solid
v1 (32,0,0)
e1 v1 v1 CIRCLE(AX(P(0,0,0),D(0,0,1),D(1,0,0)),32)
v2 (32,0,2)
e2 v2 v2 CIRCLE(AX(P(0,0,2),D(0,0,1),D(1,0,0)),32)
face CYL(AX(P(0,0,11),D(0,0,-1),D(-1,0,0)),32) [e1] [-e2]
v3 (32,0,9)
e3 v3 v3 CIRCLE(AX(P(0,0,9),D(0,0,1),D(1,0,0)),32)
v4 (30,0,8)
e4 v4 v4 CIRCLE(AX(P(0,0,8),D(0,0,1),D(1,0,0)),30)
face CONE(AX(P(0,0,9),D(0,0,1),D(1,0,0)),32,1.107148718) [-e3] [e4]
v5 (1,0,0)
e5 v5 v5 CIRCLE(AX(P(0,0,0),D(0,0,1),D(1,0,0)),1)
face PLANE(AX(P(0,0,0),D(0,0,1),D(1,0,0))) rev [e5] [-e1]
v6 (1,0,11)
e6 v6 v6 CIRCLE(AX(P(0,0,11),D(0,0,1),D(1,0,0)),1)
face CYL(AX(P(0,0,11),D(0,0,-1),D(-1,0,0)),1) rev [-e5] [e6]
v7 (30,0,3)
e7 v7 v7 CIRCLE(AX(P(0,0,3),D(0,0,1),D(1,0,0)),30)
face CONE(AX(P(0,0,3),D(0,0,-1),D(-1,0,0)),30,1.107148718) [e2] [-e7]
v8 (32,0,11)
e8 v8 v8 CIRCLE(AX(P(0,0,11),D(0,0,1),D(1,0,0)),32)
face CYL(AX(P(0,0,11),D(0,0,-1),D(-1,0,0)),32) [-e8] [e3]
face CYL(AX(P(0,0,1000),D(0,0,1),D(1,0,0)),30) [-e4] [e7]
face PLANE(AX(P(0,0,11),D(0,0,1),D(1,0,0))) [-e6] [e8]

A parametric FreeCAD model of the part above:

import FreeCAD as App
import Part
import Sketcher


def add_polygon(sketch, points):
    """Adds a closed chain of lines whose ends are joined by coincident constraints."""
    first, n = sketch.GeometryCount, len(points)
    for a, b in zip(points, points[1:] + points[:1]):
        sketch.addGeometry(Part.LineSegment(App.Vector(*a, 0), App.Vector(*b, 0)), False)
    for i in range(n):
        sketch.addConstraint(Sketcher.Constraint("Coincident", first + i, 2, first + (i + 1) % n, 1))

doc = App.newDocument("Part")
body = doc.addObject("PartDesign::Body", "Body")

# Sketch on XY plane
sketch1 = doc.addObject("Sketcher::SketchObject", "Sketch")
body.addObject(sketch1)
sketch1.AttachmentSupport = (doc.XY_Plane, [""])
sketch1.MapMode = "FlatFace"
sketch1.addGeometry([
    Part.Circle(App.Vector(0, 0, 0), App.Vector(0, 0, 1), 32),
    Part.Circle(App.Vector(0, 0, 0), App.Vector(0, 0, 1), 1),
], False)
sketch1.addConstraint([
    Sketcher.Constraint("Coincident", 0, 3, -1, 1),
    Sketcher.Constraint("Coincident", 1, 3, -1, 1),
    Sketcher.Constraint("Diameter", 0, 64.0),
    Sketcher.Constraint("Diameter", 1, 2.0),
])
pad1 = doc.addObject("PartDesign::Pad", "Pad")
body.addObject(pad1)
pad1.Profile = sketch1
pad1.Length = 11

# Sketch on YZ plane
sketch2 = doc.addObject("Sketcher::SketchObject", "Sketch001")
body.addObject(sketch2)
sketch2.AttachmentSupport = (doc.YZ_Plane, [""])
sketch2.MapMode = "FlatFace"
add_polygon(sketch2, [(30, 3), (32, 2), (32, 9), (30, 8)])  # lines 0-3
sketch2.addConstraint([
    Sketcher.Constraint("Vertical", 1),
    Sketcher.Constraint("Vertical", 3),
    Sketcher.Constraint("Equal", 0, 2),
    Sketcher.Constraint("DistanceY", 1, 1, 1, 2, 7.0),
    Sketcher.Constraint("DistanceY", 3, 2, 3, 1, 5.0),
    Sketcher.Constraint("DistanceX", -1, 1, 0, 2, 32.0),
    Sketcher.Constraint("DistanceY", -1, 1, 0, 2, 2.0),
    Sketcher.Constraint("DistanceX", -1, 1, 2, 2, 30.0),
])
groove = doc.addObject("PartDesign::Groove", "Groove")
body.addObject(groove)
groove.Profile = sketch2
groove.ReferenceAxis = (sketch2, ["V_Axis"])
groove.Angle = 360

doc.recompute()
